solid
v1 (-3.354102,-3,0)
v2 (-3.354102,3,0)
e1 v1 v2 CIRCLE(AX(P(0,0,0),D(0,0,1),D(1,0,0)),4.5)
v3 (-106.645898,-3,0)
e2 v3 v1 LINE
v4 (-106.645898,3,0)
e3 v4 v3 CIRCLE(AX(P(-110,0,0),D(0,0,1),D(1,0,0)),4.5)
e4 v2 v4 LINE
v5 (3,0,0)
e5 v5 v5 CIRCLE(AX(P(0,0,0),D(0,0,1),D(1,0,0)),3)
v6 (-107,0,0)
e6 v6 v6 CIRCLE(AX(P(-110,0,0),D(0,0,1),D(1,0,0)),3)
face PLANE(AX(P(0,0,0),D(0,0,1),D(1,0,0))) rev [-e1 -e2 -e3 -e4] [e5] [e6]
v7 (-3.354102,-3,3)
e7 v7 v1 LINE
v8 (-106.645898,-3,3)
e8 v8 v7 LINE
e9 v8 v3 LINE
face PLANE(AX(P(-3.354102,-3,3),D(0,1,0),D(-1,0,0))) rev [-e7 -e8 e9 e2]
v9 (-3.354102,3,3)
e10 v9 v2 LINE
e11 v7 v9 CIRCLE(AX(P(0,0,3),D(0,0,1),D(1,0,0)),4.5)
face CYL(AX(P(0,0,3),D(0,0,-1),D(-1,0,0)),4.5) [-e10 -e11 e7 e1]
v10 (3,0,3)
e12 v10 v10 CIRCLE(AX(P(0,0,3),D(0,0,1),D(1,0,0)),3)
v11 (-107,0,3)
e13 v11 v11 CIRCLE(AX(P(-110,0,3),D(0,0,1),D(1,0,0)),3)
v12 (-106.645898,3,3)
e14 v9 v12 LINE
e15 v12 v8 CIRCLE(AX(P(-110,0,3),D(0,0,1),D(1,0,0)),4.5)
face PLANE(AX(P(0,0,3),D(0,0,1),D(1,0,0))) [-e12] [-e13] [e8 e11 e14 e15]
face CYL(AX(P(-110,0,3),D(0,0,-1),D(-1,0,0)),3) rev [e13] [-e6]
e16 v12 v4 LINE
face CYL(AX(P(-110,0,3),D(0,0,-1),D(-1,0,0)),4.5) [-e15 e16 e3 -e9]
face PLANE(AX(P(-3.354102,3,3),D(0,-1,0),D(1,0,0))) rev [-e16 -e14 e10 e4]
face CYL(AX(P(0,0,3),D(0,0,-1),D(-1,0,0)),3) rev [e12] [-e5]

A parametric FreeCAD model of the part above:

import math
import FreeCAD as App
import Part
import Sketcher
Q = App.Units.Quantity

doc = App.newDocument("Part")
body = doc.addObject("PartDesign::Body", "Body")

sketch1 = body.newObject("Sketcher::SketchObject", "Sketch")
sketch1.AttachmentSupport = (doc.getObject("XY_Plane"), [""])
sketch1.MapMode = "FlatFace"
sketch1.addGeometry([
    Part.LineSegment(App.Vector(-106.6, -3, 0), App.Vector(-3.4, -3, 0)),
    Part.ArcOfCircle(Part.Circle(App.Vector(0, 0, 0), App.Vector(0, 0, 1), 4.5), math.radians(-138), math.radians(138)),
    Part.LineSegment(App.Vector(-3.4, 3, 0), App.Vector(-106.6, 3, 0)),
    Part.ArcOfCircle(Part.Circle(App.Vector(-110, 0, 0), App.Vector(0, 0, 1), 4.5), math.radians(42), math.radians(318)),
    Part.Circle(App.Vector(0, 0, 0), App.Vector(0, 0, 1), 3),
    Part.Circle(App.Vector(-110, 0, 0), App.Vector(0, 0, 1), 3),
], False)
sketch1.addConstraint([
    Sketcher.Constraint("Coincident", 0, 2, 1, 1),
    Sketcher.Constraint("Coincident", 1, 2, 2, 1),
    Sketcher.Constraint("Coincident", 2, 2, 3, 1),
    Sketcher.Constraint("Coincident", 3, 2, 0, 1),
    Sketcher.Constraint("Horizontal", 0),
    Sketcher.Constraint("Horizontal", 2),
    Sketcher.Constraint("Coincident", 1, 3, -1, 1),
    Sketcher.Constraint("Coincident", 4, 3, -1, 1),
    Sketcher.Constraint("Coincident", 5, 3, 3, 3),
    Sketcher.Constraint("Equal", 1, 3),
    Sketcher.Constraint("Equal", 4, 5),
    Sketcher.Constraint("Symmetric", 2, 2, 3, 2, -1),
    Sketcher.Constraint("Diameter", 4, Q("6 mm")),
    Sketcher.Constraint("Radius", 1, Q("4.5 mm")),
    Sketcher.Constraint("DistanceX", 3, 3, -1, 1, Q("110 mm")),
    Sketcher.Constraint("DistanceY", 0, 2, -1, 1, Q("3 mm")),
])
pad1 = body.newObject("PartDesign::Pad", "Pad")
pad1.Profile = sketch1
pad1.Length = 3

doc.recompute()
